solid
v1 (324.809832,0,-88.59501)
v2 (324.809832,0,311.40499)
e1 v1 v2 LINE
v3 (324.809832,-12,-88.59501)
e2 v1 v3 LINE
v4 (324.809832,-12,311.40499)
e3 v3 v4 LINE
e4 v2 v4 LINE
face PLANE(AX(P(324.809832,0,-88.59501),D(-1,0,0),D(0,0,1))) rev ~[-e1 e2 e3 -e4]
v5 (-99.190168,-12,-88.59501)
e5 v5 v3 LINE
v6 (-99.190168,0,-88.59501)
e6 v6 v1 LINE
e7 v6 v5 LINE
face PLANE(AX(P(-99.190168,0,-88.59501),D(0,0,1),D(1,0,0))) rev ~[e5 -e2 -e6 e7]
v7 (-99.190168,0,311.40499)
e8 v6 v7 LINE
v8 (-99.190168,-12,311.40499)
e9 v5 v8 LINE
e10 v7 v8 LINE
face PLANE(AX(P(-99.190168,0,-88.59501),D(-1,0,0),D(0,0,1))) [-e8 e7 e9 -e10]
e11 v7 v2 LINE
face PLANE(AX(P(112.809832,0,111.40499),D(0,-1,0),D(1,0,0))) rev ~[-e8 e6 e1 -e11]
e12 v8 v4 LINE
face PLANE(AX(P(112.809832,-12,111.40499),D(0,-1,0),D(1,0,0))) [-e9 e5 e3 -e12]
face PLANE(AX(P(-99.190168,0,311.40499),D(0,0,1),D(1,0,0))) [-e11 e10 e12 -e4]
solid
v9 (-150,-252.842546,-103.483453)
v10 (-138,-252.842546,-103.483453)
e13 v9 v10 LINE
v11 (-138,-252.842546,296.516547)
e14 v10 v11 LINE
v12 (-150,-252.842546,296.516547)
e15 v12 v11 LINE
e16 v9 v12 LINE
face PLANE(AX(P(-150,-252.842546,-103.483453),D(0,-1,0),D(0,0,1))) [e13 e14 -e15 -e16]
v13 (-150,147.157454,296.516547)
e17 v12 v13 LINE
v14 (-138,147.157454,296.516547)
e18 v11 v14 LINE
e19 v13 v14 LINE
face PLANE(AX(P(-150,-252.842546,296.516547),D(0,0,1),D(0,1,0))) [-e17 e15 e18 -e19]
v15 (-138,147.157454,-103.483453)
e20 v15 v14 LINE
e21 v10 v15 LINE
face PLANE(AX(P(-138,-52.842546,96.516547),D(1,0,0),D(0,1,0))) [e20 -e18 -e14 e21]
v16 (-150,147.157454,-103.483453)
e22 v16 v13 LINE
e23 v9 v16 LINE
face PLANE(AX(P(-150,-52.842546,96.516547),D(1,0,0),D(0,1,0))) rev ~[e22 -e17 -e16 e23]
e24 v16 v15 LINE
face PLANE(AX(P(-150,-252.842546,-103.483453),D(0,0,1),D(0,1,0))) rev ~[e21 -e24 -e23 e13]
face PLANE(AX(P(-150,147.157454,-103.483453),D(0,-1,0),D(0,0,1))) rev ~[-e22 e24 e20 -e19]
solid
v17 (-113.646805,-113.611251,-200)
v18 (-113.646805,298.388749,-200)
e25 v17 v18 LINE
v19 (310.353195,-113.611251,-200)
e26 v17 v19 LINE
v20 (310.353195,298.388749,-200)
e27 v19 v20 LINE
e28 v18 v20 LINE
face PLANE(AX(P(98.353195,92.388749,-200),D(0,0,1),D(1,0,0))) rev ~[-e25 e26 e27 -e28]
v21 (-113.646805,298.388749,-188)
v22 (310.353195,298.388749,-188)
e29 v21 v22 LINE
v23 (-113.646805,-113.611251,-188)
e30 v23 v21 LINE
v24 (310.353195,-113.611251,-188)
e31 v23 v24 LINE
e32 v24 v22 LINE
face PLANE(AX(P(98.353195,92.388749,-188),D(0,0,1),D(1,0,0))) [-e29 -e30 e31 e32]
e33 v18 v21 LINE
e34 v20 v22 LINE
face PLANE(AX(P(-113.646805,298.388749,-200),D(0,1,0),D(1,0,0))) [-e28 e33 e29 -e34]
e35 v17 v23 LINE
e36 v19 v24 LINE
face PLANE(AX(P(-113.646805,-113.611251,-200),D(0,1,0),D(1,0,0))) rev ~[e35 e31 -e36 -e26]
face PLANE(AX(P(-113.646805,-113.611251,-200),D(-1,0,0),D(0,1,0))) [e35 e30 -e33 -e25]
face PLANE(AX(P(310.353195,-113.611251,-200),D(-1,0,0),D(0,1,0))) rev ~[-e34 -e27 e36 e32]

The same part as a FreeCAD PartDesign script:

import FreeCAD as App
import Part
import Sketcher
Q = App.Units.Quantity


def add_polygon(sketch, points):
    """Adds a closed chain of lines whose ends are joined by coincident constraints."""
    first, n = sketch.GeometryCount, len(points)
    for a, b in zip(points, points[1:] + points[:1]):
        sketch.addGeometry(Part.LineSegment(App.Vector(*a, 0), App.Vector(*b, 0)), False)
    for i in range(n):
        sketch.addConstraint(Sketcher.Constraint("Coincident", first + i, 2, first + (i + 1) % n, 1))

doc = App.newDocument("Part")
body = doc.addObject("PartDesign::Body", "Body")

# Sketch on XZ plane
sketch1 = doc.addObject("Sketcher::SketchObject", "Sketch")
body.addObject(sketch1)
sketch1.AttachmentSupport = (doc.XZ_Plane, [""])
sketch1.MapMode = "FlatFace"
add_polygon(sketch1, [(-99.190168, 311.40499), (-99.190168, -88.59501), (324.809832, -88.59501), (324.809832, 311.40499)])  # lines 0-3
sketch1.addConstraint(Sketcher.Constraint("Vertical", 0))
sketch1.addConstraint(Sketcher.Constraint("Horizontal", 1))
sketch1.addConstraint(Sketcher.Constraint("Vertical", 2))
sketch1.addConstraint(Sketcher.Constraint("Horizontal", 3))
sketch1.addConstraint(Sketcher.Constraint("DistanceX", 1, 1, 1, 2, Q("424 mm")))
sketch1.addConstraint(Sketcher.Constraint("DistanceY", 0, 2, 0, 1, Q("400 mm")))
sketch1.addConstraint(Sketcher.Constraint("DistanceX", 0, 2, -1, 1, Q("99.190168 mm")))
sketch1.addConstraint(Sketcher.Constraint("DistanceY", 0, 2, -1, 1, Q("88.59501 mm")))
pad1 = doc.addObject("PartDesign::Pad", "Pad")
body.addObject(pad1)
pad1.Profile = sketch1
pad1.Length = 12
body2 = doc.addObject("PartDesign::Body", "Body001")

# Sketch on XY plane
sketch2 = doc.addObject("Sketcher::SketchObject", "Sketch001")
body2.addObject(sketch2)
sketch2.AttachmentSupport = (doc.getObject("XY_Plane001"), [""])
sketch2.MapMode = "FlatFace"
sketch2.AttachmentOffset = App.Placement(App.Vector(0, 0, -200), App.Rotation())
add_polygon(sketch2, [(-113.646805, 298.388749), (-113.646805, -113.611251), (310.353195, -113.611251), (310.353195, 298.388749)])  # lines 0-3
sketch2.addConstraint(Sketcher.Constraint("Vertical", 0))
sketch2.addConstraint(Sketcher.Constraint("Horizontal", 1))
sketch2.addConstraint(Sketcher.Constraint("Vertical", 2))
sketch2.addConstraint(Sketcher.Constraint("Horizontal", 3))
sketch2.addConstraint(Sketcher.Constraint("DistanceX", 1, 1, 1, 2, Q("424 mm")))
sketch2.addConstraint(Sketcher.Constraint("DistanceY", 0, 2, 0, 1, Q("412 mm")))
sketch2.addConstraint(Sketcher.Constraint("DistanceY", 0, 2, -1, 1, Q("113.611251 mm")))
sketch2.addConstraint(Sketcher.Constraint("DistanceX", 0, 2, -1, 1, Q("113.646805 mm")))
pad2 = doc.addObject("PartDesign::Pad", "Pad001")
body2.addObject(pad2)
pad2.Profile = sketch2
pad2.Length = 12
body3 = doc.addObject("PartDesign::Body", "Body002")

# Sketch on YZ plane
sketch3 = doc.addObject("Sketcher::SketchObject", "Sketch002")
body3.addObject(sketch3)
sketch3.AttachmentSupport = (doc.getObject("YZ_Plane002"), [""])
sketch3.MapMode = "FlatFace"
sketch3.AttachmentOffset = App.Placement(App.Vector(0, 0, -150), App.Rotation())
add_polygon(sketch3, [(-252.842546, 296.516547), (-252.842546, -103.483453), (147.157454, -103.483453), (147.157454, 296.516547)])  # lines 0-3
sketch3.addConstraint(Sketcher.Constraint("Vertical", 0))
sketch3.addConstraint(Sketcher.Constraint("Horizontal", 1))
sketch3.addConstraint(Sketcher.Constraint("Vertical", 2))
sketch3.addConstraint(Sketcher.Constraint("Horizontal", 3))
sketch3.addConstraint(Sketcher.Constraint("Equal", 3, 0))
sketch3.addConstraint(Sketcher.Constraint("DistanceX", 1, 1, 1, 2, Q("400 mm")))
sketch3.addConstraint(Sketcher.Constraint("DistanceX", 0, 2, -1, 1, Q("252.842546 mm")))
sketch3.addConstraint(Sketcher.Constraint("DistanceY", 0, 2, -1, 1, Q("103.483453 mm")))
pad3 = doc.addObject("PartDesign::Pad", "Pad002")
body3.addObject(pad3)
pad3.Profile = sketch3
pad3.Length = 12

doc.recompute()
